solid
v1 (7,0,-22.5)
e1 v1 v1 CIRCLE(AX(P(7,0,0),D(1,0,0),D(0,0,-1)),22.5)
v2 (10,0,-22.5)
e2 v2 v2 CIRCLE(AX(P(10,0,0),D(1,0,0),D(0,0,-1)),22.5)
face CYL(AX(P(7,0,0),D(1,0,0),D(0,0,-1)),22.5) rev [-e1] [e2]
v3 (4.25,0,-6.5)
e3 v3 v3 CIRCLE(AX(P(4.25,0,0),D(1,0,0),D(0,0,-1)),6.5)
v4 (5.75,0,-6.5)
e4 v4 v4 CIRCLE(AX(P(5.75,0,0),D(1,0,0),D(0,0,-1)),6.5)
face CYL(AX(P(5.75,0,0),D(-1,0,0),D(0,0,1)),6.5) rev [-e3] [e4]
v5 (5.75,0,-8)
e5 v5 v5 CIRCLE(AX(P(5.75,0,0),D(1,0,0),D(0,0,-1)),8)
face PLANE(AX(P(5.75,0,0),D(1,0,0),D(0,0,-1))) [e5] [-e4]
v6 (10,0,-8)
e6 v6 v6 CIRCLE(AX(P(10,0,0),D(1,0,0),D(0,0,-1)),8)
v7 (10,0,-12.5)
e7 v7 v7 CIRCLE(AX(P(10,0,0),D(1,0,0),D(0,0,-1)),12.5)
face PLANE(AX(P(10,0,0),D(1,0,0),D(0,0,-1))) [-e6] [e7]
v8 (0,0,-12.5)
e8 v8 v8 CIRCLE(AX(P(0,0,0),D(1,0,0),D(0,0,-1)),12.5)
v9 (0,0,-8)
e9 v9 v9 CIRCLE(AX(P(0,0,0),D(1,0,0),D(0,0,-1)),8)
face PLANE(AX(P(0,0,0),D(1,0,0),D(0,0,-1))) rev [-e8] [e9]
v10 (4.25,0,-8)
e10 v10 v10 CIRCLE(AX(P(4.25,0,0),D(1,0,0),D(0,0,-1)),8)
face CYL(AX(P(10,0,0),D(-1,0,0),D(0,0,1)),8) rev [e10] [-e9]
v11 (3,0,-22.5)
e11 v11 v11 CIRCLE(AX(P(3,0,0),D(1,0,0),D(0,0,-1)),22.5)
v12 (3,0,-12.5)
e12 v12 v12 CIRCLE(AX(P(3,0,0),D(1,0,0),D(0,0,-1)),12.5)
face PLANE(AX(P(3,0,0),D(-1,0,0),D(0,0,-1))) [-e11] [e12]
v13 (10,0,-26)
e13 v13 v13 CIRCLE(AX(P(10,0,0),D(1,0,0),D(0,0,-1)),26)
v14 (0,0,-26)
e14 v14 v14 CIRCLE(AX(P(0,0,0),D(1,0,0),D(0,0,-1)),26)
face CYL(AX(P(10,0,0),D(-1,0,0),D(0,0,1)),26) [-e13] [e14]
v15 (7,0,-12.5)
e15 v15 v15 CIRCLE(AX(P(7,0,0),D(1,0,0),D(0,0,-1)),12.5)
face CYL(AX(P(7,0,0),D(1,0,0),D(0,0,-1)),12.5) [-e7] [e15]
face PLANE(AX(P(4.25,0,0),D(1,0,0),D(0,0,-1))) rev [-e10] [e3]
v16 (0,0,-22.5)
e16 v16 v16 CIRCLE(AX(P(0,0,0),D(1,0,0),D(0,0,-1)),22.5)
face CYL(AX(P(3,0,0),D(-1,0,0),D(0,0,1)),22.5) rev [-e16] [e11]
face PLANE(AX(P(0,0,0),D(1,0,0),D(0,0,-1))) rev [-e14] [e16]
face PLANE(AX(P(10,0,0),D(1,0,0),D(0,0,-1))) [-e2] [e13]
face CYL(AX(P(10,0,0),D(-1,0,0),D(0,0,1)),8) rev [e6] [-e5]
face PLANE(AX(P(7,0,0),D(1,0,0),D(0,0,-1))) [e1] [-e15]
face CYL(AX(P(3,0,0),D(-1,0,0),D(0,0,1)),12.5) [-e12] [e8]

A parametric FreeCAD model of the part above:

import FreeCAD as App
import Part
import Sketcher
from FreeCAD import Vector

doc = App.newDocument("Part")
params = doc.addObject("Spreadsheet::Sheet", "Params")
for row, (alias, value) in enumerate([
    ("sketch1_diameter", "52 mm"),
    ("sketch1_diameter2", "16 mm"),
    ("pad1_length", "10 mm"),
    ("sketch2_diameter", "16 mm"),
    ("sketch2_diameter2", "13 mm"),
    ("pad2_length", "1.5 mm"),
    ("sketch3_diameter", "45 mm"),
    ("sketch3_diameter2", "25 mm"),
    ("pocket1_length", "3 mm"),
], start=1):
    params.set(f"A{row}", alias)
    params.set(f"B{row}", "=" + value)
    params.setAlias(f"B{row}", alias)

body = doc.addObject("PartDesign::Body", "Body")

# Sketch on YZ plane
sketch1 = body.newObject("Sketcher::SketchObject", "Sketch")
sketch1.AttachmentSupport = (doc.getObject("YZ_Plane"), [""])
sketch1.MapMode = "FlatFace"
sketch1.addGeometry(Part.Circle(Vector(0, 0, 0), Vector(0, 0, 1), 26), False)
sketch1.addGeometry(Part.Circle(Vector(0, 0, 0), Vector(0, 0, 1), 8), False)
sketch1.addConstraint(Sketcher.Constraint("Coincident", 0, 3, -1, 1))
sketch1.addConstraint(Sketcher.Constraint("Coincident", 1, 3, -1, 1))
sketch1.addConstraint(Sketcher.Constraint("Diameter", 0, 52.0))
sketch1.addConstraint(Sketcher.Constraint("Diameter", 1, 16.0))
sketch1.setExpression("Constraints[2]", "Params.sketch1_diameter")
sketch1.setExpression("Constraints[3]", "Params.sketch1_diameter2")
pad1 = body.newObject("PartDesign::Pad", "Pad")
pad1.Profile = sketch1
pad1.setExpression("Length", "Params.pad1_length")

# Sketch on YZ plane
sketch2 = body.newObject("Sketcher::SketchObject", "Sketch001")
sketch2.AttachmentSupport = (doc.getObject("YZ_Plane"), [""])
sketch2.MapMode = "FlatFace"
sketch2.AttachmentOffset = App.Placement(Vector(0, 0, 5), App.Rotation())
sketch2.addGeometry(Part.Circle(Vector(0, 0, 0), Vector(0, 0, 1), 8), False)
sketch2.addGeometry(Part.Circle(Vector(0, 0, 0), Vector(0, 0, 1), 6.5), False)
sketch2.addConstraint(Sketcher.Constraint("Coincident", 0, 3, -1, 1))
sketch2.addConstraint(Sketcher.Constraint("Coincident", 1, 3, -1, 1))
sketch2.addConstraint(Sketcher.Constraint("Diameter", 0, 16.0))
sketch2.addConstraint(Sketcher.Constraint("Diameter", 1, 13.0))
sketch2.setExpression("Constraints[2]", "Params.sketch2_diameter")
sketch2.setExpression("Constraints[3]", "Params.sketch2_diameter2")
pad2 = body.newObject("PartDesign::Pad", "Pad001")
pad2.Profile = sketch2
pad2.setExpression("Length", "Params.pad2_length")
pad2.Midplane = True

# Sketch on YZ plane
sketch3 = body.newObject("Sketcher::SketchObject", "Sketch002")
sketch3.AttachmentSupport = (doc.getObject("YZ_Plane"), [""])
sketch3.MapMode = "FlatFace"
sketch3.AttachmentOffset = App.Placement(Vector(0, 0, 10), App.Rotation())
sketch3.addGeometry(Part.Circle(Vector(0, 0, 0), Vector(0, 0, 1), 22.5), False)
sketch3.addGeometry(Part.Circle(Vector(0, 0, 0), Vector(0, 0, 1), 12.5), False)
sketch3.addConstraint(Sketcher.Constraint("Coincident", 0, 3, -1, 1))
sketch3.addConstraint(Sketcher.Constraint("Coincident", 1, 3, -1, 1))
sketch3.addConstraint(Sketcher.Constraint("Diameter", 0, 45.0))
sketch3.addConstraint(Sketcher.Constraint("Diameter", 1, 25.0))
sketch3.setExpression("Constraints[2]", "Params.sketch3_diameter")
sketch3.setExpression("Constraints[3]", "Params.sketch3_diameter2")
pocket1 = body.newObject("PartDesign::Pocket", "Pocket")
pocket1.Profile = sketch3
pocket1.setExpression("Length", "Params.pocket1_length")
doc.recompute()

datumplane = body.newObject("PartDesign::Plane", "DatumPlane")
datumplane.AttachmentSupport = (doc.getObject("YZ_Plane"), [""])
datumplane.MapMode = "FlatFace"
datumplane.AttachmentOffset = App.Placement(Vector(0, 0, 5), App.Rotation())
mirrored = body.newObject("PartDesign::Mirrored", "Mirrored")
mirrored.Originals = [pocket1]
mirrored.MirrorPlane = (datumplane, [""])
body.Tip = mirrored

doc.recompute()
